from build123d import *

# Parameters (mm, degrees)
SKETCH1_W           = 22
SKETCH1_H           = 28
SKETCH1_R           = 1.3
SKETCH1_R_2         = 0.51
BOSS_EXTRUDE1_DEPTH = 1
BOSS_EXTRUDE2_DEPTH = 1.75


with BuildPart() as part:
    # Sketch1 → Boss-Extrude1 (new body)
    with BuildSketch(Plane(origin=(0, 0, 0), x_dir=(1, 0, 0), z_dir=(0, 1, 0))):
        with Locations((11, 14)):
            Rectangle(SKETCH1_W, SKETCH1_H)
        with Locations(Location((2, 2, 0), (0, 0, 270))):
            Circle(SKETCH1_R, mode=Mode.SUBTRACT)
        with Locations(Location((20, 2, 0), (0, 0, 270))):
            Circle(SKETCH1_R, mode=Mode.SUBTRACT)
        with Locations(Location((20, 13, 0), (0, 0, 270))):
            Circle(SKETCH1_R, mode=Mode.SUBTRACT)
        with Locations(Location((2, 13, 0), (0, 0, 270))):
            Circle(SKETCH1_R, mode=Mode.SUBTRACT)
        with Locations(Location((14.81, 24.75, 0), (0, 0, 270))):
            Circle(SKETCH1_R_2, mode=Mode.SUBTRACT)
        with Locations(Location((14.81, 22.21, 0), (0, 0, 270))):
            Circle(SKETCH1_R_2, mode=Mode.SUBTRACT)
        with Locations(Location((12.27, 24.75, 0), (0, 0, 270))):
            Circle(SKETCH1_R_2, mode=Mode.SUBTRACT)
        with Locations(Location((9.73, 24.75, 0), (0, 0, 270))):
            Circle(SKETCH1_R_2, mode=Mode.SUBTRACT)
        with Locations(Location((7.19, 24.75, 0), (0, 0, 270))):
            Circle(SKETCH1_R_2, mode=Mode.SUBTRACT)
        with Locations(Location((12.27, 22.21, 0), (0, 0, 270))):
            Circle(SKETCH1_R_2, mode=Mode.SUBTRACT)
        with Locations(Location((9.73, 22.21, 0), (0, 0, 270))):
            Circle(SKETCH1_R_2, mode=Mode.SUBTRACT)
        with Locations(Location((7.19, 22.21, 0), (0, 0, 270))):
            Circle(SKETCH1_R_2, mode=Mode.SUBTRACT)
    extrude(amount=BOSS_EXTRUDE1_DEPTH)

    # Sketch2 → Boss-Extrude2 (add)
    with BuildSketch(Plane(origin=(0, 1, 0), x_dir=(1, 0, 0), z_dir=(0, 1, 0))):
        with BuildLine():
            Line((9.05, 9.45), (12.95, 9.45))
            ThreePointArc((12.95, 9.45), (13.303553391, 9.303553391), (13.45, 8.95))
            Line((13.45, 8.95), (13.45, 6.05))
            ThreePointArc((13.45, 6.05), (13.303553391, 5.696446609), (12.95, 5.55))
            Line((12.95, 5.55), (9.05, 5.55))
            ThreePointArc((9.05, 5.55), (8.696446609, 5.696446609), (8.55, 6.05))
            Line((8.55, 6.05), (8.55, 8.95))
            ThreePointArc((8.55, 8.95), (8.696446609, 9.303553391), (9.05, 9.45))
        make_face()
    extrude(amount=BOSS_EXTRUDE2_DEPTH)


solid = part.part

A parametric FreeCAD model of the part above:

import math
import FreeCAD as App
import Part
import Sketcher

V = App.Vector
Q = App.Units.Quantity


def add_polygon(sketch, points):
    """Adds a closed chain of lines whose ends are joined by coincident constraints."""
    first, n = sketch.GeometryCount, len(points)
    for a, b in zip(points, points[1:] + points[:1]):
        sketch.addGeometry(Part.LineSegment(App.Vector(*a, 0), App.Vector(*b, 0)), False)
    for i in range(n):
        sketch.addConstraint(Sketcher.Constraint("Coincident", first + i, 2, first + (i + 1) % n, 1))

doc = App.newDocument("Part")
body = doc.addObject("PartDesign::Body", "Body")

sketch1 = body.newObject("Sketcher::SketchObject", "Sketch")
sketch1.AttachmentSupport = (doc.getObject("XZ_Plane"), [""])
sketch1.MapMode = "FlatFace"
add_polygon(sketch1, [(0, -28), (0, 0), (22, 0), (22, -28)])
sketch1.addGeometry(Part.Circle(V(2, -2, 0), V(0, 0, 1), 1.3), False)
sketch1.addGeometry(Part.Circle(V(20, -2, 0), V(0, 0, 1), 1.3), False)
sketch1.addGeometry(Part.Circle(V(2, -13, 0), V(0, 0, 1), 1.3), False)
sketch1.addGeometry(Part.Circle(V(7.19, -22.21, 0), V(0, 0, 1), 0.51), False)
sketch1.addGeometry(Part.Circle(V(7.19, -24.75, 0), V(0, 0, 1), 0.51), False)
sketch1.addGeometry(Part.Circle(V(9.73, -22.21, 0), V(0, 0, 1), 0.51), False)
sketch1.addGeometry(Part.Circle(V(9.73, -24.75, 0), V(0, 0, 1), 0.51), False)
sketch1.addGeometry(Part.Circle(V(20, -13, 0), V(0, 0, 1), 1.3), False)
sketch1.addGeometry(Part.Circle(V(12.27, -22.21, 0), V(0, 0, 1), 0.51), False)
sketch1.addGeometry(Part.Circle(V(12.27, -24.75, 0), V(0, 0, 1), 0.51), False)
sketch1.addGeometry(Part.Circle(V(14.81, -22.21, 0), V(0, 0, 1), 0.51), False)
sketch1.addGeometry(Part.Circle(V(14.81, -24.75, 0), V(0, 0, 1), 0.51), False)
sketch1.addConstraint([
    Sketcher.Constraint("Vertical", 0),
    Sketcher.Constraint("Horizontal", 1),
    Sketcher.Constraint("Vertical", 2),
    Sketcher.Constraint("Horizontal", 3),
    Sketcher.Constraint("Coincident", 0, 2, -1, 1),
    Sketcher.Constraint("Equal", 4, 5),
    Sketcher.Constraint("Equal", 5, 6),
    Sketcher.Constraint("Equal", 7, 8),
    Sketcher.Constraint("Equal", 8, 9),
    Sketcher.Constraint("Equal", 9, 10),
    Sketcher.Constraint("Equal", 6, 11),
    Sketcher.Constraint("Equal", 10, 12),
    Sketcher.Constraint("Equal", 12, 13),
    Sketcher.Constraint("Equal", 13, 14),
    Sketcher.Constraint("Equal", 14, 15),
    Sketcher.Constraint("Horizontal", 4, 3, 5, 3),
    Sketcher.Constraint("Horizontal", 7, 3, 9, 3),
    Sketcher.Constraint("Horizontal", 8, 3, 10, 3),
    Sketcher.Constraint("Horizontal", 6, 3, 11, 3),
    Sketcher.Constraint("Horizontal", 9, 3, 12, 3),
    Sketcher.Constraint("Horizontal", 10, 3, 13, 3),
    Sketcher.Constraint("Horizontal", 12, 3, 14, 3),
    Sketcher.Constraint("Horizontal", 13, 3, 15, 3),
    Sketcher.Constraint("Vertical", 4, 3, 6, 3),
    Sketcher.Constraint("Vertical", 7, 3, 8, 3),
    Sketcher.Constraint("Vertical", 9, 3, 10, 3),
    Sketcher.Constraint("Vertical", 5, 3, 11, 3),
    Sketcher.Constraint("Vertical", 12, 3, 13, 3),
    Sketcher.Constraint("Vertical", 14, 3, 15, 3),
    Sketcher.Constraint("Diameter", 4, Q("2.6 mm")),
    Sketcher.Constraint("Diameter", 7, Q("1.02 mm")),
    Sketcher.Constraint("DistanceX", 1, 1, 1, 2, Q("22 mm")),
    Sketcher.Constraint("DistanceY", 0, 1, 0, 2, Q("28 mm")),
    Sketcher.Constraint("DistanceX", -1, 1, 4, 3, Q("2 mm")),
    Sketcher.Constraint("DistanceY", 4, 3, -1, 1, Q("2 mm")),
    Sketcher.Constraint("DistanceX", -1, 1, 5, 3, Q("20 mm")),
    Sketcher.Constraint("DistanceY", 6, 3, -1, 1, Q("13 mm")),
    Sketcher.Constraint("DistanceX", -1, 1, 7, 3, Q("7.19 mm")),
    Sketcher.Constraint("DistanceY", 7, 3, -1, 1, Q("22.21 mm")),
    Sketcher.Constraint("DistanceY", 8, 3, -1, 1, Q("24.75 mm")),
    Sketcher.Constraint("DistanceX", -1, 1, 9, 3, Q("9.73 mm")),
    Sketcher.Constraint("DistanceX", -1, 1, 12, 3, Q("12.27 mm")),
    Sketcher.Constraint("DistanceX", -1, 1, 14, 3, Q("14.81 mm")),
])
pad1 = body.newObject("PartDesign::Pad", "Pad")
pad1.Profile = sketch1
pad1.Length = 1
pad1.Reversed = True

sketch2 = body.newObject("Sketcher::SketchObject", "Sketch001")
sketch2.AttachmentSupport = (doc.getObject("XZ_Plane"), [""])
sketch2.MapMode = "FlatFace"
sketch2.AttachmentOffset = App.Placement(V(0, 0, -1), App.Rotation())
sketch2.addGeometry([
    Part.LineSegment(V(12.95, -9.45, 0), V(9.05, -9.45, 0)),
    Part.ArcOfCircle(Part.Circle(V(9.05, -8.95, 0), V(0, 0, 1), 0.5), math.radians(180), math.radians(270)),
    Part.LineSegment(V(8.55, -8.95, 0), V(8.55, -6.05, 0)),
    Part.ArcOfCircle(Part.Circle(V(9.05, -6.05, 0), V(0, 0, 1), 0.5), math.radians(90), math.radians(180)),
    Part.LineSegment(V(9.05, -5.55, 0), V(12.95, -5.55, 0)),
    Part.ArcOfCircle(Part.Circle(V(12.95, -6.05, 0), V(0, 0, 1), 0.5), math.radians(0), math.radians(90)),
    Part.LineSegment(V(13.45, -6.05, 0), V(13.45, -8.95, 0)),
    Part.ArcOfCircle(Part.Circle(V(12.95, -8.95, 0), V(0, 0, 1), 0.5), math.radians(-90), math.radians(0)),
], False)
sketch2.addConstraint([
    Sketcher.Constraint("Tangent", 0, 2, 1, 2),
    Sketcher.Constraint("Tangent", 1, 1, 2, 1),
    Sketcher.Constraint("Tangent", 2, 2, 3, 2),
    Sketcher.Constraint("Tangent", 3, 1, 4, 1),
    Sketcher.Constraint("Tangent", 4, 2, 5, 2),
    Sketcher.Constraint("Tangent", 5, 1, 6, 1),
    Sketcher.Constraint("Tangent", 6, 2, 7, 2),
    Sketcher.Constraint("Tangent", 7, 1, 0, 1),
    Sketcher.Constraint("Horizontal", 0),
    Sketcher.Constraint("Vertical", 2),
    Sketcher.Constraint("Horizontal", 4),
    Sketcher.Constraint("Vertical", 6),
    Sketcher.Constraint("Equal", 1, 3),
    Sketcher.Constraint("Equal", 3, 5),
    Sketcher.Constraint("Equal", 5, 7),
    Sketcher.Constraint("Radius", 1, Q("0.5 mm")),
    Sketcher.Constraint("DistanceX", 0, 2, 0, 1, Q("3.9 mm")),
    Sketcher.Constraint("DistanceY", 2, 1, 2, 2, Q("2.9 mm")),
    Sketcher.Constraint("DistanceX", -1, 1, 1, 3, Q("9.05 mm")),
    Sketcher.Constraint("DistanceY", 1, 3, -1, 1, Q("8.95 mm")),
])
pad2 = body.newObject("PartDesign::Pad", "Pad001")
pad2.Profile = sketch2
pad2.Length = 1.75
pad2.Reversed = True

doc.recompute()
